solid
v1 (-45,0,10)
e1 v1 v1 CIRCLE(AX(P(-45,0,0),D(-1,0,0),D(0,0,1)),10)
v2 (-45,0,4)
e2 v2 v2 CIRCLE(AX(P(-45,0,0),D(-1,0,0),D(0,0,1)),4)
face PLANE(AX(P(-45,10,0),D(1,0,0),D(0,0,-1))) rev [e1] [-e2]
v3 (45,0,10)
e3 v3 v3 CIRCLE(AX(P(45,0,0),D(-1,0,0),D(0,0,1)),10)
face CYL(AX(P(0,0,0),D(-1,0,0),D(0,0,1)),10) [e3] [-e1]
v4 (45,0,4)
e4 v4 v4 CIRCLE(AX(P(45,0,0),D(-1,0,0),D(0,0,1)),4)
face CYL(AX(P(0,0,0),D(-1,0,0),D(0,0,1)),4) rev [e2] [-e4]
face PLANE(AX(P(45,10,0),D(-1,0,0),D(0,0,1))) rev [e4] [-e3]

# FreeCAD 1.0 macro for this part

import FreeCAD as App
import Part
import Sketcher

V = App.Vector


def add_polygon(sketch, points):
    """Adds a closed chain of lines whose ends are joined by coincident constraints."""
    first, n = sketch.GeometryCount, len(points)
    for a, b in zip(points, points[1:] + points[:1]):
        sketch.addGeometry(Part.LineSegment(App.Vector(*a, 0), App.Vector(*b, 0)), False)
    for i in range(n):
        sketch.addConstraint(Sketcher.Constraint("Coincident", first + i, 2, first + (i + 1) % n, 1))

doc = App.newDocument("Part")
params = doc.addObject("Spreadsheet::Sheet", "Params")
for row, (alias, value) in enumerate([
    ("sketch1_width", "90 mm"),
    ("sketch1_height", "6 mm"),
    ("revolution_angle", "360 deg"),
], start=1):
    params.set(f"A{row}", alias)
    params.set(f"B{row}", "=" + value)
    params.setAlias(f"B{row}", alias)

body = doc.addObject("PartDesign::Body", "Body")

sketch1 = body.newObject("Sketcher::SketchObject", "Sketch")
sketch1.AttachmentSupport = (doc.getObject("XY_Plane"), [""])
sketch1.MapMode = "FlatFace"
add_polygon(sketch1, [(-45, 10), (-45, 4), (45, 4), (45, 10)])
sketch1.addConstraint(Sketcher.Constraint("Vertical", 0))
sketch1.addConstraint(Sketcher.Constraint("Horizontal", 1))
sketch1.addConstraint(Sketcher.Constraint("Vertical", 2))
sketch1.addConstraint(Sketcher.Constraint("Horizontal", 3))
sketch1.addConstraint(Sketcher.Constraint("DistanceX", 1, 1, 1, 2, 90.0))
sketch1.addConstraint(Sketcher.Constraint("DistanceY", 0, 2, 0, 1, 6.0))
sketch1.addConstraint(Sketcher.Constraint("DistanceX", 0, 2, -1, 1, 45.0))
sketch1.addConstraint(Sketcher.Constraint("DistanceY", -1, 1, 0, 2, 4.0))
sketch1.setExpression("Constraints[8]", "Params.sketch1_width")
sketch1.setExpression("Constraints[9]", "Params.sketch1_height")
revolution = body.newObject("PartDesign::Revolution", "Revolution")
revolution.Profile = sketch1
revolution.ReferenceAxis = (sketch1, ["H_Axis"])
revolution.setExpression("Angle", "Params.revolution_angle")

doc.recompute()
